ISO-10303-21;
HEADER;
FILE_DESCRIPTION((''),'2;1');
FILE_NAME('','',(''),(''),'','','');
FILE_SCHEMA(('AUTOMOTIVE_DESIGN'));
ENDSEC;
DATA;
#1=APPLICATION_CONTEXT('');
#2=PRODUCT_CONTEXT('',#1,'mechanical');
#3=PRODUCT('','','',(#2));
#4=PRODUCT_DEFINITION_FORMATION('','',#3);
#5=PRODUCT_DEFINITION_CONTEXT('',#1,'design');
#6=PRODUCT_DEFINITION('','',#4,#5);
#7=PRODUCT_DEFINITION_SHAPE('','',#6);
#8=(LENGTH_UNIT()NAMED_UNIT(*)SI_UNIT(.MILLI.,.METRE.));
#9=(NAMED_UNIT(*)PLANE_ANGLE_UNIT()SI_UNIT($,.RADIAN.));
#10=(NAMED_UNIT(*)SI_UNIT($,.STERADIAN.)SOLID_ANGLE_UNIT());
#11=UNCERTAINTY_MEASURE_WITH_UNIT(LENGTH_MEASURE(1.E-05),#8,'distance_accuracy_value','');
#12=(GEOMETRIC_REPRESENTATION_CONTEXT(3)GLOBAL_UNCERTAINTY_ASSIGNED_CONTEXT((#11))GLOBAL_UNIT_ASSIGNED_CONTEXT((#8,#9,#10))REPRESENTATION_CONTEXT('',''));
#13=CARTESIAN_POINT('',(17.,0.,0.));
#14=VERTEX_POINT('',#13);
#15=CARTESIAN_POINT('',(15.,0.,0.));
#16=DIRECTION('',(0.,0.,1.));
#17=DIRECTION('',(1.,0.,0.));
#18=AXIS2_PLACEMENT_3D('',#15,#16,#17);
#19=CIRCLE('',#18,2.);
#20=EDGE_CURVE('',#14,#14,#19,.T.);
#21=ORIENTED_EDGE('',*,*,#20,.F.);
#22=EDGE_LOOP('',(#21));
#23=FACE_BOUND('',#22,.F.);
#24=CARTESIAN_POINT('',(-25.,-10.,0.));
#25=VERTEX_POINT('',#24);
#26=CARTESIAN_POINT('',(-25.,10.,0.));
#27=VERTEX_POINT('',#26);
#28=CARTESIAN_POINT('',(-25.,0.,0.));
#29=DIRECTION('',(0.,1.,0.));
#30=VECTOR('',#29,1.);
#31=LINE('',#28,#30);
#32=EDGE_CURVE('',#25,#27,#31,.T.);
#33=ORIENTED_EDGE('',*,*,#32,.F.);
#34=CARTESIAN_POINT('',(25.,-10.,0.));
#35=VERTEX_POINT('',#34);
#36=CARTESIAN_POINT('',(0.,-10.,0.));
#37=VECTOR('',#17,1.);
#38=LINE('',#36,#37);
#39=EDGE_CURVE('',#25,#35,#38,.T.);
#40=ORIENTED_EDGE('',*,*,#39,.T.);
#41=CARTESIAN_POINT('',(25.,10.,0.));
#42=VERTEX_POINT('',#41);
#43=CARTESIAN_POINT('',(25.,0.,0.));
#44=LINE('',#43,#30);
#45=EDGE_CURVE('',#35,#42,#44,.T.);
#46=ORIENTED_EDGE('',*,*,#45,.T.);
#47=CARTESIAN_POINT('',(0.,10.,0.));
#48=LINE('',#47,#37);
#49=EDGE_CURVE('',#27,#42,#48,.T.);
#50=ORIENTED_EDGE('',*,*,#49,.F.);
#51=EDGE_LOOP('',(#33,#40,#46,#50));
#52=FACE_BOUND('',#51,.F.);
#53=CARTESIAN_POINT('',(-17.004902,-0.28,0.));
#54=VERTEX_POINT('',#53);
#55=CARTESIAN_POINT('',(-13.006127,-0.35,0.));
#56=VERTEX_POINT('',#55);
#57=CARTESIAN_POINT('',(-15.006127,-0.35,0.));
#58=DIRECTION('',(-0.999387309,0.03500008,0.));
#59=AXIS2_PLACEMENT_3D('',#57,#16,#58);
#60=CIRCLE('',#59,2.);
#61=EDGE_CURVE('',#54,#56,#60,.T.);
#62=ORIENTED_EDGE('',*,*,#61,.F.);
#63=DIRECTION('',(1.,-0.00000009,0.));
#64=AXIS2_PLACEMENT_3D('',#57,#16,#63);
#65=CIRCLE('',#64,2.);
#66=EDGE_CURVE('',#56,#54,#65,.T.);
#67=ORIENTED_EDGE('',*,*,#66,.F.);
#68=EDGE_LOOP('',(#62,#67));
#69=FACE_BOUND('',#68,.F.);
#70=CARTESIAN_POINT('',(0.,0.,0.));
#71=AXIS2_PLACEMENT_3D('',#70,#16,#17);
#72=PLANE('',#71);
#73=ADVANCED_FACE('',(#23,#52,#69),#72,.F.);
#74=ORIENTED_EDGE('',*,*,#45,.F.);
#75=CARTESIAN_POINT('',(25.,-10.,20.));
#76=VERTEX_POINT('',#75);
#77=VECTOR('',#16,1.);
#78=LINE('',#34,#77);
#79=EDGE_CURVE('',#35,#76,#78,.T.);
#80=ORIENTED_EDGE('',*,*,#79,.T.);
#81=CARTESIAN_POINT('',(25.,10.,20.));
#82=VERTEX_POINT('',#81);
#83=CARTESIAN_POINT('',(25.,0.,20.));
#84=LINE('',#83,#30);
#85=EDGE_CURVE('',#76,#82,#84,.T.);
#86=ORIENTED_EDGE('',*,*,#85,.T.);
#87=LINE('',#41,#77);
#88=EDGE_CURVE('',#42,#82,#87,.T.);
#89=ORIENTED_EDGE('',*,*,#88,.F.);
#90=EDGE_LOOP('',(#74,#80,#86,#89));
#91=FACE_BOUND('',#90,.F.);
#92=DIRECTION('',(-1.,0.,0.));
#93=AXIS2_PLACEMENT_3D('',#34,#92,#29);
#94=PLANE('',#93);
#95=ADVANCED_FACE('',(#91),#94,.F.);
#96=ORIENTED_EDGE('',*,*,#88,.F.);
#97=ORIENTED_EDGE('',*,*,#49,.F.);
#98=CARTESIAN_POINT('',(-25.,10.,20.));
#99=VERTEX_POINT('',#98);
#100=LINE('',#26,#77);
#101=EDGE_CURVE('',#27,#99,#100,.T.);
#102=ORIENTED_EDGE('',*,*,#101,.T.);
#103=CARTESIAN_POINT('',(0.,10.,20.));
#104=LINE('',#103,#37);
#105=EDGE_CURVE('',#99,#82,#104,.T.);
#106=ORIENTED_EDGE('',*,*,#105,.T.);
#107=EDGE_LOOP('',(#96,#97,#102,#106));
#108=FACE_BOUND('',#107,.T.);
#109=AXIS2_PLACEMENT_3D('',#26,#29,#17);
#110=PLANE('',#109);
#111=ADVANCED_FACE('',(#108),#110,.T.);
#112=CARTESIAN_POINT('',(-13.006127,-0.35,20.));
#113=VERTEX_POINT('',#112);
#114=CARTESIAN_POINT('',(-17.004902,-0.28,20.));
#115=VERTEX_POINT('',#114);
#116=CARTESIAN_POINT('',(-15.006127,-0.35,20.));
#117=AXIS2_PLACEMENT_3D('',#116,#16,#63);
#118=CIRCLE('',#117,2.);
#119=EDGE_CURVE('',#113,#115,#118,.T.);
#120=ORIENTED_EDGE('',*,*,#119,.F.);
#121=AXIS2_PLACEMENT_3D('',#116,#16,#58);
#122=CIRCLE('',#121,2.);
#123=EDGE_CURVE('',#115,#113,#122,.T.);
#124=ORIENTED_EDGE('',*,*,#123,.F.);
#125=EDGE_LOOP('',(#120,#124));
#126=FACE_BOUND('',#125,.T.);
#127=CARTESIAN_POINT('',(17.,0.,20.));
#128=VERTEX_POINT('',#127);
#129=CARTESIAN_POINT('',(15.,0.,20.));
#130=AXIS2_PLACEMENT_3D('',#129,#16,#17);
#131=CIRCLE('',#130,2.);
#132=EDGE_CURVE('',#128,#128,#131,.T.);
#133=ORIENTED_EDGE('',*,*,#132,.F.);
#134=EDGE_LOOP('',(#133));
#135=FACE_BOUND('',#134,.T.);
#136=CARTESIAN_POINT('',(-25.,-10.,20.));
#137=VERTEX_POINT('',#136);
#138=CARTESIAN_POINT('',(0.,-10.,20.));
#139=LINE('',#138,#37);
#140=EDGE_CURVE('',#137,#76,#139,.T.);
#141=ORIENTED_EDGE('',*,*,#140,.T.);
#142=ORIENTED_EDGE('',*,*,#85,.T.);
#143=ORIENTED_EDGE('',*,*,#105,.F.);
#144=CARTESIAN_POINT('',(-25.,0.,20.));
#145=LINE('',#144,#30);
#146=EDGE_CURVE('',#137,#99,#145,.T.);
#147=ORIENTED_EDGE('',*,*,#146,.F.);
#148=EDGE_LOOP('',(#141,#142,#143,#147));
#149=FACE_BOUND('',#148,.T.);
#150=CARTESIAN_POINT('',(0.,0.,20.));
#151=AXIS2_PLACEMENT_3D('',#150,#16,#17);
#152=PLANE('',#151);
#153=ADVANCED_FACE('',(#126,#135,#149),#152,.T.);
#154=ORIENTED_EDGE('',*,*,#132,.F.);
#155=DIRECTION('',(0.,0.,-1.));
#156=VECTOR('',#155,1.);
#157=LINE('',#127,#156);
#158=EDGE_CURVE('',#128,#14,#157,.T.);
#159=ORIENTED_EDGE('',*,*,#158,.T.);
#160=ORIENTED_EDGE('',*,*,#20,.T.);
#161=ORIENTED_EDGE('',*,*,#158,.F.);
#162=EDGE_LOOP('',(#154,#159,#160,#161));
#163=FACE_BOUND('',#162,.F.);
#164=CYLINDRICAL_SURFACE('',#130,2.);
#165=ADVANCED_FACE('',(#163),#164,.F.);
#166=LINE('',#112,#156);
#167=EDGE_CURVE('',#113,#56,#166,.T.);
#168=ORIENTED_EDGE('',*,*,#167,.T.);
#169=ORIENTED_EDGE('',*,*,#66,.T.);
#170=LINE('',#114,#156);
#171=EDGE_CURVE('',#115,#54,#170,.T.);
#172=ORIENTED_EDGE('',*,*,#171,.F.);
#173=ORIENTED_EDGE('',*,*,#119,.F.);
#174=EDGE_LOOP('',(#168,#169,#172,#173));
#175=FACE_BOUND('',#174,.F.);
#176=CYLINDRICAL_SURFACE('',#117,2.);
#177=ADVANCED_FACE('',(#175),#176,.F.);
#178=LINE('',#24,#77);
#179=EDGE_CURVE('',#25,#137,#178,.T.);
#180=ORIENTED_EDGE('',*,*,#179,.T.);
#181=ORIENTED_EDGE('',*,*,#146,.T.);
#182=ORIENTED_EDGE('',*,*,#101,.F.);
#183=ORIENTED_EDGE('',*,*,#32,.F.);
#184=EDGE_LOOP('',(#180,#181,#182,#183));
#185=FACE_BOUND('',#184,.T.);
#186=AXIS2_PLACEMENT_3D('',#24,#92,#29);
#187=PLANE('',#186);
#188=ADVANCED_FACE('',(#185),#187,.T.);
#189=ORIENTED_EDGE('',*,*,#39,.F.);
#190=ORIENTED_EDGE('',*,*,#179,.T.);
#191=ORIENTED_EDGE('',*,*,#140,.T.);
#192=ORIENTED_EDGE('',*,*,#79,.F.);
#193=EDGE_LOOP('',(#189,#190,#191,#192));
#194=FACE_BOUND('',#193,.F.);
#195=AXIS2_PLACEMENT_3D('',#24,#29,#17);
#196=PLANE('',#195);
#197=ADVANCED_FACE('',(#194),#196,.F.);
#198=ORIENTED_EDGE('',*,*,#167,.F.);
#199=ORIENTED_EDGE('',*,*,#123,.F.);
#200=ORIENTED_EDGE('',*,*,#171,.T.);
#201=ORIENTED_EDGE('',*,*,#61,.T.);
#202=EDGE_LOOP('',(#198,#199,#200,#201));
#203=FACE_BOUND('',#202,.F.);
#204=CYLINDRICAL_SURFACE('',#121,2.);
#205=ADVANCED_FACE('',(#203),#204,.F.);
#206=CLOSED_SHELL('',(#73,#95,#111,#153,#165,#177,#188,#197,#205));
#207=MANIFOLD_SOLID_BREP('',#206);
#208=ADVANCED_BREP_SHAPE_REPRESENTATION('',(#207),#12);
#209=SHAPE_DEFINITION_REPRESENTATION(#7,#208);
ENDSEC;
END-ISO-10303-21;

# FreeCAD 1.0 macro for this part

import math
import FreeCAD as App
import Part
import Sketcher
from FreeCAD import Vector
Q = App.Units.Quantity

doc = App.newDocument("Part")
body = doc.addObject("PartDesign::Body", "Body")

# Sketch on XY plane
sketch1 = body.newObject("Sketcher::SketchObject", "Sketch")
sketch1.AttachmentSupport = (doc.getObject("XY_Plane"), [""])
sketch1.MapMode = "FlatFace"
sketch1.addGeometry(Part.LineSegment(Vector(-25, 10, 0), Vector(-25, -10, 0)), False)
sketch1.addGeometry(Part.LineSegment(Vector(-25, -10, 0), Vector(25, -10, 0)), False)
sketch1.addGeometry(Part.LineSegment(Vector(25, -10, 0), Vector(25, 10, 0)), False)
sketch1.addGeometry(Part.LineSegment(Vector(25, 10, 0), Vector(-25, 10, 0)), False)
sketch1.addConstraint(Sketcher.Constraint("Coincident", 0, 2, 1, 1))
sketch1.addConstraint(Sketcher.Constraint("Coincident", 1, 2, 2, 1))
sketch1.addConstraint(Sketcher.Constraint("Coincident", 2, 2, 3, 1))
sketch1.addConstraint(Sketcher.Constraint("Coincident", 3, 2, 0, 1))
sketch1.addConstraint(Sketcher.Constraint("Vertical", 0))
sketch1.addConstraint(Sketcher.Constraint("Horizontal", 1))
sketch1.addConstraint(Sketcher.Constraint("Vertical", 2))
sketch1.addConstraint(Sketcher.Constraint("Horizontal", 3))
sketch1.addConstraint(Sketcher.Constraint("Symmetric", 0, 2, 2, 2, -1, 1))
sketch1.addConstraint(Sketcher.Constraint("DistanceX", 1, 1, 1, 2, Q("50 mm")))
sketch1.addConstraint(Sketcher.Constraint("DistanceY", 0, 2, 0, 1, Q("20 mm")))
pad1 = body.newObject("PartDesign::Pad", "Pad")
pad1.Profile = sketch1
pad1.Length = 20

# Sketch on XY plane
sketch2 = body.newObject("Sketcher::SketchObject", "Sketch001")
sketch2.AttachmentSupport = (doc.getObject("XY_Plane"), [""])
sketch2.MapMode = "FlatFace"
sketch2.AttachmentOffset = App.Placement(Vector(0, 0, 20), App.Rotation())
sketch2.addGeometry(Part.ArcOfCircle(Part.Circle(Vector(-15, -0.3, 0), Vector(0, 0, 1), 2), math.radians(0), math.radians(178)), False)
sketch2.addGeometry(Part.ArcOfCircle(Part.Circle(Vector(-15, -0.4, 0), Vector(0, 0, 1), 2), math.radians(178), math.radians(360)), False)
sketch2.addGeometry(Part.Circle(Vector(15, 0, 0), Vector(0, 0, 1), 2), False)
sketch2.addConstraint(Sketcher.Constraint("Tangent", 0, 1, 1, 2))
sketch2.addConstraint(Sketcher.Constraint("Coincident", 1, 1, 0, 2))
sketch2.addConstraint(Sketcher.Constraint("Equal", 1, 2))
sketch2.addConstraint(Sketcher.Constraint("PointOnObject", 2, 3, -1))
sketch2.addConstraint(Sketcher.Constraint("Horizontal", 1, 3, 0, 1))
sketch2.addConstraint(Sketcher.Constraint("Diameter", 2, Q("4 mm")))
sketch2.addConstraint(Sketcher.Constraint("DistanceX", -1, 1, 2, 3, Q("15 mm")))
sketch2.addConstraint(Sketcher.Constraint("DistanceY", 0, 3, -1, 1, Q("0.35 mm")))
sketch2.addConstraint(Sketcher.Constraint("DistanceY", 1, 1, -1, 1, Q("0.28 mm")))
sketch2.addConstraint(Sketcher.Constraint("DistanceX", 0, 3, -1, 1, Q("15.006127 mm")))
pocket1 = body.newObject("PartDesign::Pocket", "Pocket")
pocket1.Profile = sketch2
pocket1.Length = 25

doc.recompute()
